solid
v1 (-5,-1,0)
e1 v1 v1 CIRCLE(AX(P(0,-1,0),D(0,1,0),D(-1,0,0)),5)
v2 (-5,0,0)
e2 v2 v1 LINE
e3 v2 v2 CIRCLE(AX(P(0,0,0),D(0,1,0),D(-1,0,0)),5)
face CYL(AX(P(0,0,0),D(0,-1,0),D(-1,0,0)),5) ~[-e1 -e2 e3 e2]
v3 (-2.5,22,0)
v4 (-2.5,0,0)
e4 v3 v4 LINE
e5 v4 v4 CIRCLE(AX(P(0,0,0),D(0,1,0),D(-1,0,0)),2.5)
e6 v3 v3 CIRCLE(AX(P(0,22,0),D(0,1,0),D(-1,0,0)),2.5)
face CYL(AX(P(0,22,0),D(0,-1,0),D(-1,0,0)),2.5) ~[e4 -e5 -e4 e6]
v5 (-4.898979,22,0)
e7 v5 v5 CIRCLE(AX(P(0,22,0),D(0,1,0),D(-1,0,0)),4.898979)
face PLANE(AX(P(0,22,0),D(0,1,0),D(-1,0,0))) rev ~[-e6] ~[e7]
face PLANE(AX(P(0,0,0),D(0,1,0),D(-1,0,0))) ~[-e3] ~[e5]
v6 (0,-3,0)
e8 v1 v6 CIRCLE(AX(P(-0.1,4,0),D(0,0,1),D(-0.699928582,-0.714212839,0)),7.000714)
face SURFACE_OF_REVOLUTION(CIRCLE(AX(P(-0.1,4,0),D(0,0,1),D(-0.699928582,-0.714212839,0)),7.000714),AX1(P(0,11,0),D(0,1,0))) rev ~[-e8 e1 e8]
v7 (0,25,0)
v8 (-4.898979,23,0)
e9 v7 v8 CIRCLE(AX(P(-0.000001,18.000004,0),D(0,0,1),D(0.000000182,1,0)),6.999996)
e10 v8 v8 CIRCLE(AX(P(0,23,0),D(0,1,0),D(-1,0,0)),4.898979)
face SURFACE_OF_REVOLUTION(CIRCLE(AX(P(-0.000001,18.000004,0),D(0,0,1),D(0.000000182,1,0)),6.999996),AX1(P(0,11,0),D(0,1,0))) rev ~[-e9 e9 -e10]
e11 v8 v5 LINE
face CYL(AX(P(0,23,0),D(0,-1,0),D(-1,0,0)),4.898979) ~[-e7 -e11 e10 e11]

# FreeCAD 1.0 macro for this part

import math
import FreeCAD as App
import Part
import Sketcher

doc = App.newDocument("Part")
body = doc.addObject("PartDesign::Body", "Body")

# Sketch on XY plane
sketch1 = body.newObject("Sketcher::SketchObject", "Sketch")
sketch1.AttachmentSupport = (doc.getObject("XY_Plane"), [""])
sketch1.MapMode = "FlatFace"
sketch1.addGeometry(Part.LineSegment(App.Vector(-4.9, 22, 0), App.Vector(-2.5, 22, 0)), False)
sketch1.addGeometry(Part.LineSegment(App.Vector(-2.5, 22, 0), App.Vector(-2.5, 0, 0)), False)
sketch1.addGeometry(Part.LineSegment(App.Vector(-2.5, 0, 0), App.Vector(-5, 0, 0)), False)
sketch1.addGeometry(Part.LineSegment(App.Vector(-5, 0, 0), App.Vector(-5, -1, 0)), False)
sketch1.addGeometry(Part.ArcOfCircle(Part.Circle(App.Vector(-0.1, 4, 0), App.Vector(0, 0, 1), 7), math.radians(-134), math.radians(-89)), False)
sketch1.addGeometry(Part.LineSegment(App.Vector(0, -3, 0), App.Vector(0, 25, 0)), False)
sketch1.addGeometry(Part.ArcOfCircle(Part.Circle(App.Vector(0, 18, 0), App.Vector(0, 0, 1), 7), math.radians(90), math.radians(134)), False)
sketch1.addGeometry(Part.LineSegment(App.Vector(-4.9, 23, 0), App.Vector(-4.9, 22, 0)), False)
sketch1.addConstraint(Sketcher.Constraint("Coincident", 0, 2, 1, 1))
sketch1.addConstraint(Sketcher.Constraint("Coincident", 1, 2, 2, 1))
sketch1.addConstraint(Sketcher.Constraint("Coincident", 2, 2, 3, 1))
sketch1.addConstraint(Sketcher.Constraint("Coincident", 3, 2, 4, 1))
sketch1.addConstraint(Sketcher.Constraint("Coincident", 4, 2, 5, 1))
sketch1.addConstraint(Sketcher.Constraint("Coincident", 5, 2, 6, 1))
sketch1.addConstraint(Sketcher.Constraint("Coincident", 6, 2, 7, 1))
sketch1.addConstraint(Sketcher.Constraint("Coincident", 7, 2, 0, 1))
sketch1.addConstraint(Sketcher.Constraint("Horizontal", 0))
sketch1.addConstraint(Sketcher.Constraint("Vertical", 1))
sketch1.addConstraint(Sketcher.Constraint("Horizontal", 2))
sketch1.addConstraint(Sketcher.Constraint("Vertical", 3))
sketch1.addConstraint(Sketcher.Constraint("Vertical", 5))
sketch1.addConstraint(Sketcher.Constraint("Vertical", 7))
sketch1.addConstraint(Sketcher.Constraint("PointOnObject", 6, 3, -2))
sketch1.addConstraint(Sketcher.Constraint("PointOnObject", 1, 2, -1))
sketch1.addConstraint(Sketcher.Constraint("PointOnObject", 4, 2, -2))
sketch1.addConstraint(Sketcher.Constraint("Equal", 3, 7))
sketch1.addConstraint(Sketcher.Constraint("DistanceY", 1, 2, 1, 1, 22.0))
sketch1.addConstraint(Sketcher.Constraint("DistanceY", 3, 2, 3, 1, 1.0))
sketch1.addConstraint(Sketcher.Constraint("DistanceY", 5, 1, 5, 2, 28.0))
sketch1.addConstraint(Sketcher.Constraint("DistanceX", 2, 2, 2, 1, 2.5))
sketch1.addConstraint(Sketcher.Constraint("DistanceY", -1, 1, 4, 3, 4.0))
sketch1.addConstraint(Sketcher.Constraint("DistanceX", 2, 2, -1, 1, 5.0))
sketch1.addConstraint(Sketcher.Constraint("DistanceY", 4, 2, -1, 1, 3.0))
sketch1.addConstraint(Sketcher.Constraint("Radius", 6, 6.999996))
revolution = body.newObject("PartDesign::Revolution", "Revolution")
revolution.Profile = sketch1
revolution.ReferenceAxis = (sketch1, ["V_Axis"])
revolution.Angle = 360

doc.recompute()
